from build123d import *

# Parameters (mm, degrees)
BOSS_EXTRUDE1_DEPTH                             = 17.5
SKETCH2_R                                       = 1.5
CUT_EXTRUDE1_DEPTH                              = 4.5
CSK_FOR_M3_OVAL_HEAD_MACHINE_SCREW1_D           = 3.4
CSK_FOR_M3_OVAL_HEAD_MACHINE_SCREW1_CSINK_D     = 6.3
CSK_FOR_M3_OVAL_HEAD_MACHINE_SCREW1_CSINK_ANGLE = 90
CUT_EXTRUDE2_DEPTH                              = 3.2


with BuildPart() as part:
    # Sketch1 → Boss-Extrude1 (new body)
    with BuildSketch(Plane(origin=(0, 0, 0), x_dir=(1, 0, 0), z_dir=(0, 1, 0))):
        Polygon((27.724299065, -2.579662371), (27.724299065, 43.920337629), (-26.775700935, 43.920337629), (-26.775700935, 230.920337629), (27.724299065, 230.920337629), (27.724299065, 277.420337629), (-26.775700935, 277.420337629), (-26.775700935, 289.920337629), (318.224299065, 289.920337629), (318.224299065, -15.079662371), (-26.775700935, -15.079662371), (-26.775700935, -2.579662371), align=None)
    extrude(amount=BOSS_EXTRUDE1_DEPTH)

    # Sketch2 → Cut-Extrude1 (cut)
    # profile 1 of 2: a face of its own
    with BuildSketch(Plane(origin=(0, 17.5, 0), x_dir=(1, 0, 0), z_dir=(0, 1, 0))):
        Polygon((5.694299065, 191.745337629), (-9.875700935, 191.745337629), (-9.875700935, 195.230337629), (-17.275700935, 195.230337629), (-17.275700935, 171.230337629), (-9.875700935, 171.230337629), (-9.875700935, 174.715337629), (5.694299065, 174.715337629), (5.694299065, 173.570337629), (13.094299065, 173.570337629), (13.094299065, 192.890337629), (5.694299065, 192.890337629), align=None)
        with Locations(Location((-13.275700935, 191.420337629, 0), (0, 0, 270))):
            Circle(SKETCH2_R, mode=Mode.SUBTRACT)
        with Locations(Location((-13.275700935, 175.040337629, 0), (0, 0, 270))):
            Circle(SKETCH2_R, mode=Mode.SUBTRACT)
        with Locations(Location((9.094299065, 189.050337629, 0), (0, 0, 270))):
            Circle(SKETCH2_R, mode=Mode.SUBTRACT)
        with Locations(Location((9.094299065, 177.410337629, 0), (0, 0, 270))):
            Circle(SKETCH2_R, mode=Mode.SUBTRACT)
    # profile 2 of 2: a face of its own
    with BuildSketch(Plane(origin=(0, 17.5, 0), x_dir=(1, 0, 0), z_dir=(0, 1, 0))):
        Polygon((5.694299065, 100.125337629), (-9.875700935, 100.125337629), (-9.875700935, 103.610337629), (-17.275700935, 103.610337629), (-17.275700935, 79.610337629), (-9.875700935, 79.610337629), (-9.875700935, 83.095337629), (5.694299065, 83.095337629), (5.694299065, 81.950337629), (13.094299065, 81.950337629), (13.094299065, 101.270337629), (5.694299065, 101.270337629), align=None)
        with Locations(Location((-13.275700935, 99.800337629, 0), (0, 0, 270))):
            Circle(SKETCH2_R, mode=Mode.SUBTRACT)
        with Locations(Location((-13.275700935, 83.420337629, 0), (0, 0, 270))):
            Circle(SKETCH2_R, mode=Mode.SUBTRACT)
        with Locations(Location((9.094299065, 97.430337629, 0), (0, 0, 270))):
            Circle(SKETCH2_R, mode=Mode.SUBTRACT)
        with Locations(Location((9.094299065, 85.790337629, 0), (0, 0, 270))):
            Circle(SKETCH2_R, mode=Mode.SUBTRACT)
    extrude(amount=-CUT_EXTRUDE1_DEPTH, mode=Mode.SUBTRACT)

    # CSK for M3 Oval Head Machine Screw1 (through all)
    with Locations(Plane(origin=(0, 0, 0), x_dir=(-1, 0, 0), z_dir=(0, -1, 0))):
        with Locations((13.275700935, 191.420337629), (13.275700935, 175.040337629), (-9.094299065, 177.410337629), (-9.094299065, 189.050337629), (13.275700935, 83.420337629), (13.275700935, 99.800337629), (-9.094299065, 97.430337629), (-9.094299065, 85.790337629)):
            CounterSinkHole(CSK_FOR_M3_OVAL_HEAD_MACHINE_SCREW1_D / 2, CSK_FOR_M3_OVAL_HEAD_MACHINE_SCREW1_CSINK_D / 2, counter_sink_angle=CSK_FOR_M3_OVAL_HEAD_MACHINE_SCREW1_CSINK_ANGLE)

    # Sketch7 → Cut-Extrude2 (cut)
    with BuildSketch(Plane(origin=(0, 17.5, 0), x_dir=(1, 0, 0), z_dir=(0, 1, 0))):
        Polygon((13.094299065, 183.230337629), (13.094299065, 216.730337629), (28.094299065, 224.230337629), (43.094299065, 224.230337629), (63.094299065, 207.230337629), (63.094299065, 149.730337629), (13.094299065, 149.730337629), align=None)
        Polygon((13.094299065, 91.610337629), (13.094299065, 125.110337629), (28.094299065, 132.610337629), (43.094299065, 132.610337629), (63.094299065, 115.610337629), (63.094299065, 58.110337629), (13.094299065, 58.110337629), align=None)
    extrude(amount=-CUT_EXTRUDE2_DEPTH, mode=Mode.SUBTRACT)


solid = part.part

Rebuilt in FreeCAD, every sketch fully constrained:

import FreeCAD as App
import Part
import Sketcher
from FreeCAD import Vector
Q = App.Units.Quantity


def add_polygon(sketch, points):
    """Adds a closed chain of lines whose ends are joined by coincident constraints."""
    first, n = sketch.GeometryCount, len(points)
    for a, b in zip(points, points[1:] + points[:1]):
        sketch.addGeometry(Part.LineSegment(App.Vector(*a, 0), App.Vector(*b, 0)), False)
    for i in range(n):
        sketch.addConstraint(Sketcher.Constraint("Coincident", first + i, 2, first + (i + 1) % n, 1))

doc = App.newDocument("Part")
body = doc.addObject("PartDesign::Body", "Body")

sketch1 = body.newObject("Sketcher::SketchObject", "Sketch")
sketch1.AttachmentSupport = (doc.getObject("XZ_Plane"), [""])
sketch1.MapMode = "FlatFace"
add_polygon(sketch1, [(28, -44), (28, 3), (-27, 3), (-27, 15), (318, 15), (318, -290), (-27, -290), (-27, -277), (28, -277), (28, -231), (-27, -231), (-27, -44)])
sketch1.addConstraint(Sketcher.Constraint("Vertical", 0))
sketch1.addConstraint(Sketcher.Constraint("Horizontal", 1))
sketch1.addConstraint(Sketcher.Constraint("Vertical", 2))
sketch1.addConstraint(Sketcher.Constraint("Horizontal", 3))
sketch1.addConstraint(Sketcher.Constraint("Vertical", 4))
sketch1.addConstraint(Sketcher.Constraint("Horizontal", 5))
sketch1.addConstraint(Sketcher.Constraint("Vertical", 6))
sketch1.addConstraint(Sketcher.Constraint("Horizontal", 7))
sketch1.addConstraint(Sketcher.Constraint("Vertical", 8))
sketch1.addConstraint(Sketcher.Constraint("Horizontal", 9))
sketch1.addConstraint(Sketcher.Constraint("Vertical", 10))
sketch1.addConstraint(Sketcher.Constraint("Horizontal", 11))
sketch1.addConstraint(Sketcher.Constraint("Vertical", 2, 2, 5, 2))
sketch1.addConstraint(Sketcher.Constraint("Vertical", 0, 2, 7, 2))
sketch1.addConstraint(Sketcher.Constraint("Vertical", 6, 2, 9, 2))
sketch1.addConstraint(Sketcher.Constraint("Equal", 2, 6))
sketch1.addConstraint(Sketcher.Constraint("Equal", 0, 8))
sketch1.addConstraint(Sketcher.Constraint("DistanceX", 3, 1, 3, 2, Q("345 mm")))
sketch1.addConstraint(Sketcher.Constraint("DistanceY", 4, 2, 4, 1, Q("305 mm")))
sketch1.addConstraint(Sketcher.Constraint("DistanceY", 10, 1, 10, 2, Q("187 mm")))
sketch1.addConstraint(Sketcher.Constraint("DistanceX", 1, 2, 1, 1, Q("54.5 mm")))
sketch1.addConstraint(Sketcher.Constraint("DistanceY", 0, 1, 0, 2, Q("46.5 mm")))
sketch1.addConstraint(Sketcher.Constraint("DistanceX", -1, 1, 0, 2, Q("27.724299 mm")))
sketch1.addConstraint(Sketcher.Constraint("DistanceY", -1, 1, 0, 2, Q("2.579662 mm")))
pad1 = body.newObject("PartDesign::Pad", "Pad")
pad1.Profile = sketch1
pad1.Length = 17.5
pad1.Reversed = True

sketch2 = body.newObject("Sketcher::SketchObject", "Sketch001")
sketch2.AttachmentSupport = (doc.getObject("XZ_Plane"), [""])
sketch2.MapMode = "FlatFace"
sketch2.AttachmentOffset = App.Placement(Vector(0, 0, -17.5), App.Rotation())
add_polygon(sketch2, [(5.7, -191.7), (-9.9, -191.7), (-9.9, -195.2), (-17.3, -195.2), (-17.3, -171.2), (-9.9, -171.2), (-9.9, -174.7), (5.7, -174.7), (5.7, -173.6), (13.1, -173.6), (13.1, -192.9), (5.7, -192.9)])
sketch2.addGeometry(Part.Circle(Vector(-13.3, -175, 0), Vector(0, 0, 1), 1.5), False)
sketch2.addGeometry(Part.Circle(Vector(9.1, -177.4, 0), Vector(0, 0, 1), 1.5), False)
sketch2.addGeometry(Part.Circle(Vector(-13.3, -191.4, 0), Vector(0, 0, 1), 1.5), False)
sketch2.addGeometry(Part.Circle(Vector(9.1, -189.1, 0), Vector(0, 0, 1), 1.5), False)
add_polygon(sketch2, [(5.7, -100.1), (-9.9, -100.1), (-9.9, -103.6), (-17.3, -103.6), (-17.3, -79.6), (-9.9, -79.6), (-9.9, -83.1), (5.7, -83.1), (5.7, -82), (13.1, -82), (13.1, -101.3), (5.7, -101.3)])
sketch2.addGeometry(Part.Circle(Vector(-13.3, -83.4, 0), Vector(0, 0, 1), 1.5), False)
sketch2.addGeometry(Part.Circle(Vector(9.1, -85.8, 0), Vector(0, 0, 1), 1.5), False)
sketch2.addGeometry(Part.Circle(Vector(-13.3, -99.8, 0), Vector(0, 0, 1), 1.5), False)
sketch2.addGeometry(Part.Circle(Vector(9.1, -97.4, 0), Vector(0, 0, 1), 1.5), False)
sketch2.addConstraint(Sketcher.Constraint("Horizontal", 0))
sketch2.addConstraint(Sketcher.Constraint("Vertical", 1))
sketch2.addConstraint(Sketcher.Constraint("Horizontal", 2))
sketch2.addConstraint(Sketcher.Constraint("Vertical", 3))
sketch2.addConstraint(Sketcher.Constraint("Horizontal", 4))
sketch2.addConstraint(Sketcher.Constraint("Vertical", 5))
sketch2.addConstraint(Sketcher.Constraint("Horizontal", 6))
sketch2.addConstraint(Sketcher.Constraint("Vertical", 7))
sketch2.addConstraint(Sketcher.Constraint("Horizontal", 8))
sketch2.addConstraint(Sketcher.Constraint("Vertical", 9))
sketch2.addConstraint(Sketcher.Constraint("Horizontal", 10))
sketch2.addConstraint(Sketcher.Constraint("Vertical", 11))
sketch2.addConstraint(Sketcher.Constraint("Horizontal", 16))
sketch2.addConstraint(Sketcher.Constraint("Vertical", 17))
sketch2.addConstraint(Sketcher.Constraint("Horizontal", 18))
sketch2.addConstraint(Sketcher.Constraint("Vertical", 19))
sketch2.addConstraint(Sketcher.Constraint("Horizontal", 20))
sketch2.addConstraint(Sketcher.Constraint("Vertical", 21))
sketch2.addConstraint(Sketcher.Constraint("Horizontal", 22))
sketch2.addConstraint(Sketcher.Constraint("Vertical", 23))
sketch2.addConstraint(Sketcher.Constraint("Horizontal", 24))
sketch2.addConstraint(Sketcher.Constraint("Vertical", 25))
sketch2.addConstraint(Sketcher.Constraint("Horizontal", 26))
sketch2.addConstraint(Sketcher.Constraint("Vertical", 27))
sketch2.addConstraint(Sketcher.Constraint("Equal", 12, 13))
sketch2.addConstraint(Sketcher.Constraint("Equal", 13, 14))
sketch2.addConstraint(Sketcher.Constraint("Equal", 14, 15))
sketch2.addConstraint(Sketcher.Constraint("Equal", 15, 28))
sketch2.addConstraint(Sketcher.Constraint("Equal", 28, 29))
sketch2.addConstraint(Sketcher.Constraint("Equal", 29, 30))
sketch2.addConstraint(Sketcher.Constraint("Equal", 30, 31))
sketch2.addConstraint(Sketcher.Constraint("Vertical", 12, 3, 14, 3))
sketch2.addConstraint(Sketcher.Constraint("Vertical", 13, 3, 15, 3))
sketch2.addConstraint(Sketcher.Constraint("Vertical", 14, 3, 28, 3))
sketch2.addConstraint(Sketcher.Constraint("Vertical", 15, 3, 29, 3))
sketch2.addConstraint(Sketcher.Constraint("Vertical", 28, 3, 30, 3))
sketch2.addConstraint(Sketcher.Constraint("Vertical", 29, 3, 31, 3))
sketch2.addConstraint(Sketcher.Constraint("Vertical", 1, 2, 4, 2))
sketch2.addConstraint(Sketcher.Constraint("Vertical", 7, 2, 10, 2))
sketch2.addConstraint(Sketcher.Constraint("Vertical", 5, 2, 16, 2))
sketch2.addConstraint(Sketcher.Constraint("Vertical", 3, 2, 18, 2))
sketch2.addConstraint(Sketcher.Constraint("Vertical", 17, 2, 20, 2))
sketch2.addConstraint(Sketcher.Constraint("Vertical", 11, 2, 22, 2))
sketch2.addConstraint(Sketcher.Constraint("Vertical", 9, 2, 24, 2))
sketch2.addConstraint(Sketcher.Constraint("Vertical", 23, 2, 26, 2))
sketch2.addConstraint(Sketcher.Constraint("Equal", 4, 8))
sketch2.addConstraint(Sketcher.Constraint("Equal", 1, 5))
sketch2.addConstraint(Sketcher.Constraint("Equal", 7, 11))
sketch2.addConstraint(Sketcher.Constraint("Equal", 5, 17))
sketch2.addConstraint(Sketcher.Constraint("Equal", 3, 19))
sketch2.addConstraint(Sketcher.Constraint("Equal", 17, 21))
sketch2.addConstraint(Sketcher.Constraint("Equal", 11, 23))
sketch2.addConstraint(Sketcher.Constraint("Equal", 9, 25))
sketch2.addConstraint(Sketcher.Constraint("Diameter", 12, Q("3 mm")))
sketch2.addConstraint(Sketcher.Constraint("DistanceY", 3, 1, 3, 2, Q("24 mm")))
sketch2.addConstraint(Sketcher.Constraint("DistanceX", 2, 2, 2, 1, Q("7.4 mm")))
sketch2.addConstraint(Sketcher.Constraint("DistanceY", 14, 3, 28, 3, Q("108 mm")))
sketch2.addConstraint(Sketcher.Constraint("DistanceX", 2, 2, 14, 3, Q("4 mm")))
sketch2.addConstraint(Sketcher.Constraint("DistanceX", 13, 3, 8, 2, Q("4 mm")))
sketch2.addConstraint(Sketcher.Constraint("DistanceX", 0, 2, 0, 1, Q("15.57 mm")))
sketch2.addConstraint(Sketcher.Constraint("DistanceY", 9, 2, 9, 1, Q("19.32 mm")))
sketch2.addConstraint(Sketcher.Constraint("DistanceY", 1, 2, 1, 1, Q("3.485 mm")))
sketch2.addConstraint(Sketcher.Constraint("DistanceY", 13, 3, 12, 3, Q("2.37 mm")))
sketch2.addConstraint(Sketcher.Constraint("DistanceY", 14, 3, 12, 3, Q("16.38 mm")))
sketch2.addConstraint(Sketcher.Constraint("DistanceY", 15, 3, 13, 3, Q("11.64 mm")))
sketch2.addConstraint(Sketcher.Constraint("DistanceY", 29, 3, 28, 3, Q("2.37 mm")))
sketch2.addConstraint(Sketcher.Constraint("DistanceY", 30, 3, 28, 3, Q("16.38 mm")))
sketch2.addConstraint(Sketcher.Constraint("DistanceY", 31, 3, 29, 3, Q("11.64 mm")))
sketch2.addConstraint(Sketcher.Constraint("DistanceY", 1, 2, 14, 3, Q("3.81 mm")))
sketch2.addConstraint(Sketcher.Constraint("DistanceY", 17, 2, 30, 3, Q("3.81 mm")))
sketch2.addConstraint(Sketcher.Constraint("DistanceX", 12, 3, -1, 1, Q("13.275701 mm")))
sketch2.addConstraint(Sketcher.Constraint("DistanceY", 12, 3, -1, 1, Q("175.040338 mm")))
pocket1 = body.newObject("PartDesign::Pocket", "Pocket")
pocket1.Profile = sketch2
pocket1.Length = 4.5
pocket1.Reversed = True

sketch3 = body.newObject("Sketcher::SketchObject", "Sketch002")
sketch3.AttachmentSupport = (doc.getObject("XZ_Plane"), [""])
sketch3.MapMode = "FlatFace"
sketch3.addGeometry(Part.Circle(Vector(-13.3, -191.4, 0), Vector(0, 0, 1), 1.7), False)
sketch3.addGeometry(Part.Circle(Vector(-13.3, -175, 0), Vector(0, 0, 1), 1.7), False)
sketch3.addGeometry(Part.Circle(Vector(9.1, -177.4, 0), Vector(0, 0, 1), 1.7), False)
sketch3.addGeometry(Part.Circle(Vector(9.1, -189.1, 0), Vector(0, 0, 1), 1.7), False)
sketch3.addGeometry(Part.Circle(Vector(-13.3, -83.4, 0), Vector(0, 0, 1), 1.7), False)
sketch3.addGeometry(Part.Circle(Vector(-13.3, -99.8, 0), Vector(0, 0, 1), 1.7), False)
sketch3.addGeometry(Part.Circle(Vector(9.1, -97.4, 0), Vector(0, 0, 1), 1.7), False)
sketch3.addGeometry(Part.Circle(Vector(9.1, -85.8, 0), Vector(0, 0, 1), 1.7), False)
sketch3.addConstraint(Sketcher.Constraint("Equal", 0, 1))
sketch3.addConstraint(Sketcher.Constraint("Equal", 1, 2))
sketch3.addConstraint(Sketcher.Constraint("Equal", 2, 3))
sketch3.addConstraint(Sketcher.Constraint("Equal", 3, 4))
sketch3.addConstraint(Sketcher.Constraint("Equal", 4, 5))
sketch3.addConstraint(Sketcher.Constraint("Equal", 5, 6))
sketch3.addConstraint(Sketcher.Constraint("Equal", 6, 7))
sketch3.addConstraint(Sketcher.Constraint("Vertical", 0, 3, 1, 3))
sketch3.addConstraint(Sketcher.Constraint("Vertical", 2, 3, 3, 3))
sketch3.addConstraint(Sketcher.Constraint("Vertical", 1, 3, 4, 3))
sketch3.addConstraint(Sketcher.Constraint("Vertical", 4, 3, 5, 3))
sketch3.addConstraint(Sketcher.Constraint("Vertical", 3, 3, 6, 3))
sketch3.addConstraint(Sketcher.Constraint("Vertical", 6, 3, 7, 3))
sketch3.addConstraint(Sketcher.Constraint("Diameter", 0, Q("3.4 mm")))
sketch3.addConstraint(Sketcher.Constraint("DistanceY", 0, 3, 4, 3, Q("108 mm")))
sketch3.addConstraint(Sketcher.Constraint("DistanceY", 0, 3, 1, 3, Q("16.38 mm")))
sketch3.addConstraint(Sketcher.Constraint("DistanceX", 1, 3, 2, 3, Q("22.37 mm")))
sketch3.addConstraint(Sketcher.Constraint("DistanceY", 2, 3, 1, 3, Q("2.37 mm")))
sketch3.addConstraint(Sketcher.Constraint("DistanceY", 3, 3, 2, 3, Q("11.64 mm")))
sketch3.addConstraint(Sketcher.Constraint("DistanceY", 5, 3, 4, 3, Q("16.38 mm")))
sketch3.addConstraint(Sketcher.Constraint("DistanceY", 5, 3, 6, 3, Q("2.37 mm")))
sketch3.addConstraint(Sketcher.Constraint("DistanceY", 6, 3, 7, 3, Q("11.64 mm")))
sketch3.addConstraint(Sketcher.Constraint("DistanceX", 0, 3, -1, 1, Q("13.275701 mm")))
sketch3.addConstraint(Sketcher.Constraint("DistanceY", 0, 3, -1, 1, Q("191.420338 mm")))
doc.recompute()
hole = body.newObject("PartDesign::Hole", "Hole")
hole.Profile = sketch3
hole.ThreadType = "None"
hole.Diameter = 3.4
hole.DepthType = "ThroughAll"
hole.HoleCutType = "Countersink"
hole.HoleCutDiameter = 6.3
hole.HoleCutCountersinkAngle = 90

sketch4 = body.newObject("Sketcher::SketchObject", "Sketch003")
sketch4.AttachmentSupport = (doc.getObject("XZ_Plane"), [""])
sketch4.MapMode = "FlatFace"
sketch4.AttachmentOffset = App.Placement(Vector(0, 0, -17.5), App.Rotation())
add_polygon(sketch4, [(13, -217), (13, -150), (63, -150), (63, -207), (43, -224), (28, -224)])
add_polygon(sketch4, [(13, -125), (13, -58), (63, -58), (63, -116), (43, -133), (28, -133)])
sketch4.addConstraint(Sketcher.Constraint("Vertical", 0))
sketch4.addConstraint(Sketcher.Constraint("Horizontal", 1))
sketch4.addConstraint(Sketcher.Constraint("Vertical", 2))
sketch4.addConstraint(Sketcher.Constraint("Horizontal", 4))
sketch4.addConstraint(Sketcher.Constraint("Vertical", 6))
sketch4.addConstraint(Sketcher.Constraint("Horizontal", 7))
sketch4.addConstraint(Sketcher.Constraint("Vertical", 8))
sketch4.addConstraint(Sketcher.Constraint("Horizontal", 10))
sketch4.addConstraint(Sketcher.Constraint("Parallel", 3, 9))
sketch4.addConstraint(Sketcher.Constraint("Parallel", 5, 11))
sketch4.addConstraint(Sketcher.Constraint("Vertical", 5, 2, 6, 2))
sketch4.addConstraint(Sketcher.Constraint("Vertical", 2, 2, 7, 2))
sketch4.addConstraint(Sketcher.Constraint("Vertical", 3, 2, 9, 2))
sketch4.addConstraint(Sketcher.Constraint("Vertical", 4, 2, 10, 2))
sketch4.addConstraint(Sketcher.Constraint("Equal", 0, 6))
sketch4.addConstraint(Sketcher.Constraint("DistanceX", 1, 1, 1, 2, Q("50 mm")))
sketch4.addConstraint(Sketcher.Constraint("DistanceX", 4, 2, 4, 1, Q("15 mm")))
sketch4.addConstraint(Sketcher.Constraint("DistanceY", 0, 1, 0, 2, Q("67 mm")))
sketch4.addConstraint(Sketcher.Constraint("DistanceY", 2, 2, 2, 1, Q("57.5 mm")))
sketch4.addConstraint(Sketcher.Constraint("DistanceX", 3, 2, 2, 2, Q("20 mm")))
sketch4.addConstraint(Sketcher.Constraint("DistanceY", 3, 2, 2, 2, Q("17 mm")))
sketch4.addConstraint(Sketcher.Constraint("DistanceY", 0, 2, 6, 2, Q("91.62 mm")))
sketch4.addConstraint(Sketcher.Constraint("DistanceX", -1, 1, 0, 2, Q("13.094299 mm")))
sketch4.addConstraint(Sketcher.Constraint("DistanceY", 0, 2, -1, 1, Q("149.730338 mm")))
pocket2 = body.newObject("PartDesign::Pocket", "Pocket001")
pocket2.Profile = sketch4
pocket2.Length = 3.2
pocket2.Reversed = True

doc.recompute()
